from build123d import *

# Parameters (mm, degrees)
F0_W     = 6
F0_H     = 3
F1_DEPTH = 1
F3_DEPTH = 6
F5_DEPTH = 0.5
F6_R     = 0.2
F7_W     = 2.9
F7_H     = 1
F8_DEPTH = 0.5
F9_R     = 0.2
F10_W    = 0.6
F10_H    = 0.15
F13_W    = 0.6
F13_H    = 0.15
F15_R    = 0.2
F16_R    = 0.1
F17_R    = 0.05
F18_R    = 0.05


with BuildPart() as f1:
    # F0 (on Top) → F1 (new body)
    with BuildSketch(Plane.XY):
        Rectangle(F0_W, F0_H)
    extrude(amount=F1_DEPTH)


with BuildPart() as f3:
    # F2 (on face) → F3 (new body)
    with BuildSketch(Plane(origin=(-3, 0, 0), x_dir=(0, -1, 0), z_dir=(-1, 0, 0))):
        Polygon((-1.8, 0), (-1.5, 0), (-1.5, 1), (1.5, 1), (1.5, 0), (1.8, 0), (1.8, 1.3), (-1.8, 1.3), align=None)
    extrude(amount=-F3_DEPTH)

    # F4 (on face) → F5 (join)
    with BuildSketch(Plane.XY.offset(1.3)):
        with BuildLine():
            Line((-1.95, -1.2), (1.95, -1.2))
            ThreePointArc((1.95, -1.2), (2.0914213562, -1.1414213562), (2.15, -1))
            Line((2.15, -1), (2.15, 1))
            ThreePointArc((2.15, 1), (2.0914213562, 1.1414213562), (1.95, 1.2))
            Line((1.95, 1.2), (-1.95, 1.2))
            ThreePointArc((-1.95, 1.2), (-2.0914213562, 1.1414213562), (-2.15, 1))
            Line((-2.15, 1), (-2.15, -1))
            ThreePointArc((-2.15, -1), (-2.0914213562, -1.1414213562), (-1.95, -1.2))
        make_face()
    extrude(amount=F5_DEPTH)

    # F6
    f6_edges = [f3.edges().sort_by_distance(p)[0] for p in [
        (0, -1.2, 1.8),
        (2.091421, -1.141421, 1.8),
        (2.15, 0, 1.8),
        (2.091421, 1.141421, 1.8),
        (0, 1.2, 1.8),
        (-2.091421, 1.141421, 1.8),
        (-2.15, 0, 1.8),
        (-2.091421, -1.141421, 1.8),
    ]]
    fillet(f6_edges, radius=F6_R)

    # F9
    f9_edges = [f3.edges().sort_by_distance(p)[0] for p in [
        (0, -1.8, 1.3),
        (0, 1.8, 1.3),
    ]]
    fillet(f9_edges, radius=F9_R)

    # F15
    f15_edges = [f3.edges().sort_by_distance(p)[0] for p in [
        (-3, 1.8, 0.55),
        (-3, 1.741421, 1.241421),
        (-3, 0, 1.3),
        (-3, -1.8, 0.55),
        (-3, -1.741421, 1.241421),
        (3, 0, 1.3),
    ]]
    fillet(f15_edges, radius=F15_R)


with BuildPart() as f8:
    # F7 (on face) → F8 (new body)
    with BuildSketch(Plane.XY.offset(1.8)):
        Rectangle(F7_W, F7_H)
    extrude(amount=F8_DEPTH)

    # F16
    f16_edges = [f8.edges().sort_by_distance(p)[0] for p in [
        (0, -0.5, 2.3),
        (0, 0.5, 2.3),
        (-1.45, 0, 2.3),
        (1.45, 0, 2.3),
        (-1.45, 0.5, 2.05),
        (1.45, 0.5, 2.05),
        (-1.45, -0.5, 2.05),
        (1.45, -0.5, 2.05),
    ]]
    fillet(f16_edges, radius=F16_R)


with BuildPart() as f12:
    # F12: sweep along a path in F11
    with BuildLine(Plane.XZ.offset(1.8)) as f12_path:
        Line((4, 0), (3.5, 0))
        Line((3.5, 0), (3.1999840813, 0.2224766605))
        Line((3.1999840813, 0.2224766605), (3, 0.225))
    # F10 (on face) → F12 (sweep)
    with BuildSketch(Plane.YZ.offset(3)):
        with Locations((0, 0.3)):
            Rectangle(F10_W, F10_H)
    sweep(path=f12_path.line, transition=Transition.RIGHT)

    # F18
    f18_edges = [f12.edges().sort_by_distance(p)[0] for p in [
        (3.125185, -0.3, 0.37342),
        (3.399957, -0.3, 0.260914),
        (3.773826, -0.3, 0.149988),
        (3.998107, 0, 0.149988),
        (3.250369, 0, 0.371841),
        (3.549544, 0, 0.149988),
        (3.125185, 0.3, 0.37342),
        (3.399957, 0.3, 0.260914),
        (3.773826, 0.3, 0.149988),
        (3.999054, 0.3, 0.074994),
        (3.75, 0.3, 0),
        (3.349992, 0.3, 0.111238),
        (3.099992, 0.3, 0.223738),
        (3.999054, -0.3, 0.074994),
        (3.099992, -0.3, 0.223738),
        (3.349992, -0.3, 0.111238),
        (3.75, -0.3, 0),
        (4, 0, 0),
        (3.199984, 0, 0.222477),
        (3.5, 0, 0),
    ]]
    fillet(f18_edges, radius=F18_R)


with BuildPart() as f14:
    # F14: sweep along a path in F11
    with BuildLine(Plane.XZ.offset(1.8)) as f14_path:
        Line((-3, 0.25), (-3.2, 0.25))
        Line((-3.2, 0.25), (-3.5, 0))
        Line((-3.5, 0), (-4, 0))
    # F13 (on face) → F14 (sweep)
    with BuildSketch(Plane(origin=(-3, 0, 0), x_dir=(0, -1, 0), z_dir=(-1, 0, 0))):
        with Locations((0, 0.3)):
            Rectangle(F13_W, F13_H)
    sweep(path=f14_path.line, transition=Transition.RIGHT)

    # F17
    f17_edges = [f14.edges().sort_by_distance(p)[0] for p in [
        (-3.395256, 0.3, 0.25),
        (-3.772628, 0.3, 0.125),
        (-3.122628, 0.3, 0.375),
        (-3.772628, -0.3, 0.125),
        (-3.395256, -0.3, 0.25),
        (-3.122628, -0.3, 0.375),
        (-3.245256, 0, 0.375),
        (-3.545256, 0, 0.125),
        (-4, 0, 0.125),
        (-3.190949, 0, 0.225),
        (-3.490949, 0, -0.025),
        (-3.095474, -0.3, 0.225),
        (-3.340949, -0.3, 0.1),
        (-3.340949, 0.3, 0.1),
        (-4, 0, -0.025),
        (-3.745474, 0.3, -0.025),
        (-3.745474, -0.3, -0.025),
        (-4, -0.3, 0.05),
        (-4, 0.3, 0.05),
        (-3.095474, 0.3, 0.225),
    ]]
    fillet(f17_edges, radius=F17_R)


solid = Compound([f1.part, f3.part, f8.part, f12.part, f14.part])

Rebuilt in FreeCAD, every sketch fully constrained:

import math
import FreeCAD as App
import Part
import Sketcher
Q = App.Units.Quantity


def edges_at(feature, points):
    """Names of the edges that pass closest to the given points."""
    edges = feature.Shape.Edges
    near = lambda p: min(range(len(edges)), key=lambda i: edges[i].distToShape(Part.Vertex(*p))[0])
    return sorted({f"Edge{near(p) + 1}" for p in points})


def add_polygon(sketch, points):
    """Adds a closed chain of lines whose ends are joined by coincident constraints."""
    first, n = sketch.GeometryCount, len(points)
    for a, b in zip(points, points[1:] + points[:1]):
        sketch.addGeometry(Part.LineSegment(App.Vector(*a, 0), App.Vector(*b, 0)), False)
    for i in range(n):
        sketch.addConstraint(Sketcher.Constraint("Coincident", first + i, 2, first + (i + 1) % n, 1))

doc = App.newDocument("Part")
body = doc.addObject("PartDesign::Body", "Body")

# Sketch on XY plane
sketch1 = body.newObject("Sketcher::SketchObject", "Sketch")
sketch1.AttachmentSupport = (doc.getObject("XY_Plane"), [""])
sketch1.MapMode = "FlatFace"
add_polygon(sketch1, [(-3, 1.5), (-3, -1.5), (3, -1.5), (3, 1.5)])  # lines 0-3
sketch1.addConstraint(Sketcher.Constraint("Vertical", 0))
sketch1.addConstraint(Sketcher.Constraint("Horizontal", 1))
sketch1.addConstraint(Sketcher.Constraint("Vertical", 2))
sketch1.addConstraint(Sketcher.Constraint("Horizontal", 3))
sketch1.addConstraint(Sketcher.Constraint("Symmetric", 0, 2, 2, 2, -1, 1))
sketch1.addConstraint(Sketcher.Constraint("DistanceX", 1, 1, 1, 2, Q("6 mm")))
sketch1.addConstraint(Sketcher.Constraint("DistanceY", 0, 2, 0, 1, Q("3 mm")))
pad1 = body.newObject("PartDesign::Pad", "Pad")
pad1.Profile = sketch1
pad1.Length = 1
body2 = doc.addObject("PartDesign::Body", "Body001")

# Sketch on YZ plane
sketch2 = body2.newObject("Sketcher::SketchObject", "Sketch001")
sketch2.AttachmentSupport = (doc.getObject("YZ_Plane001"), [""])
sketch2.MapMode = "FlatFace"
sketch2.AttachmentOffset = App.Placement(App.Vector(0, 0, -3), App.Rotation())
add_polygon(sketch2, [(1.8, 0), (1.5, 0), (1.5, 1), (-1.5, 1), (-1.5, 0), (-1.8, 0), (-1.8, 1.3), (1.8, 1.3)])  # lines 0-7
sketch2.addConstraint(Sketcher.Constraint("Horizontal", 0))
sketch2.addConstraint(Sketcher.Constraint("Vertical", 1))
sketch2.addConstraint(Sketcher.Constraint("Horizontal", 2))
sketch2.addConstraint(Sketcher.Constraint("Vertical", 3))
sketch2.addConstraint(Sketcher.Constraint("Horizontal", 4))
sketch2.addConstraint(Sketcher.Constraint("Vertical", 5))
sketch2.addConstraint(Sketcher.Constraint("Horizontal", 6))
sketch2.addConstraint(Sketcher.Constraint("Vertical", 7))
sketch2.addConstraint(Sketcher.Constraint("Symmetric", 0, 2, 3, 2, -1, 1))
sketch2.addConstraint(Sketcher.Constraint("Symmetric", 4, 2, 7, 2, -2))
sketch2.addConstraint(Sketcher.Constraint("DistanceX", 2, 2, 2, 1, Q("3 mm")))
sketch2.addConstraint(Sketcher.Constraint("DistanceY", 1, 1, 1, 2, Q("1 mm")))
sketch2.addConstraint(Sketcher.Constraint("DistanceX", 0, 2, 0, 1, Q("0.3 mm")))
sketch2.addConstraint(Sketcher.Constraint("DistanceY", 5, 1, 5, 2, Q("1.3 mm")))
pad2 = body2.newObject("PartDesign::Pad", "Pad001")
pad2.Profile = sketch2
pad2.Length = 6

# Sketch on XY plane
sketch3 = body2.newObject("Sketcher::SketchObject", "Sketch002")
sketch3.AttachmentSupport = (doc.getObject("XY_Plane001"), [""])
sketch3.MapMode = "FlatFace"
sketch3.AttachmentOffset = App.Placement(App.Vector(0, 0, 1.3), App.Rotation())
sketch3.addGeometry(Part.LineSegment(App.Vector(-1.95, -1.2, 0), App.Vector(1.95, -1.2, 0)), False)
sketch3.addGeometry(Part.ArcOfCircle(Part.Circle(App.Vector(1.95, -1, 0), App.Vector(0, 0, 1), 0.2), math.radians(-90), math.radians(0)), False)
sketch3.addGeometry(Part.LineSegment(App.Vector(2.15, -1, 0), App.Vector(2.15, 1, 0)), False)
sketch3.addGeometry(Part.ArcOfCircle(Part.Circle(App.Vector(1.95, 1, 0), App.Vector(0, 0, 1), 0.2), math.radians(0), math.radians(90)), False)
sketch3.addGeometry(Part.LineSegment(App.Vector(1.95, 1.2, 0), App.Vector(-1.95, 1.2, 0)), False)
sketch3.addGeometry(Part.ArcOfCircle(Part.Circle(App.Vector(-1.95, 1, 0), App.Vector(0, 0, 1), 0.2), math.radians(90), math.radians(180)), False)
sketch3.addGeometry(Part.LineSegment(App.Vector(-2.15, 1, 0), App.Vector(-2.15, -1, 0)), False)
sketch3.addGeometry(Part.ArcOfCircle(Part.Circle(App.Vector(-1.95, -1, 0), App.Vector(0, 0, 1), 0.2), math.radians(180), math.radians(270)), False)
sketch3.addConstraint(Sketcher.Constraint("Tangent", 0, 2, 1, 1))
sketch3.addConstraint(Sketcher.Constraint("Tangent", 1, 2, 2, 1))
sketch3.addConstraint(Sketcher.Constraint("Tangent", 2, 2, 3, 1))
sketch3.addConstraint(Sketcher.Constraint("Tangent", 3, 2, 4, 1))
sketch3.addConstraint(Sketcher.Constraint("Tangent", 4, 2, 5, 1))
sketch3.addConstraint(Sketcher.Constraint("Tangent", 5, 2, 6, 1))
sketch3.addConstraint(Sketcher.Constraint("Tangent", 6, 2, 7, 1))
sketch3.addConstraint(Sketcher.Constraint("Tangent", 7, 2, 0, 1))
sketch3.addConstraint(Sketcher.Constraint("Horizontal", 0))
sketch3.addConstraint(Sketcher.Constraint("Vertical", 2))
sketch3.addConstraint(Sketcher.Constraint("Horizontal", 4))
sketch3.addConstraint(Sketcher.Constraint("Vertical", 6))
sketch3.addConstraint(Sketcher.Constraint("Equal", 1, 3))
sketch3.addConstraint(Sketcher.Constraint("Equal", 3, 5))
sketch3.addConstraint(Sketcher.Constraint("Equal", 5, 7))
sketch3.addConstraint(Sketcher.Constraint("Symmetric", 1, 3, 5, 3, -1, 1))
sketch3.addConstraint(Sketcher.Constraint("Radius", 1, Q("0.2 mm")))
sketch3.addConstraint(Sketcher.Constraint("DistanceY", 2, 1, 2, 2, Q("2 mm")))
sketch3.addConstraint(Sketcher.Constraint("DistanceX", 0, 1, 0, 2, Q("3.9 mm")))
pad3 = body2.newObject("PartDesign::Pad", "Pad002")
pad3.Profile = sketch3
pad3.Length = 0.5
doc.recompute()

fillet = body2.newObject("PartDesign::Fillet", "Fillet")
fillet.Base = (pad3, edges_at(pad3, [
    (0, -1.2, 1.8),
    (2.091, -1.141, 1.8),
    (2.15, 0, 1.8),
    (2.091, 1.141, 1.8),
    (0, 1.2, 1.8),
    (-2.091, 1.141, 1.8),
    (-2.15, 0, 1.8),
    (-2.091, -1.141, 1.8),
]))
fillet.Radius = 0.2
doc.recompute()

fillet2 = body2.newObject("PartDesign::Fillet", "Fillet001")
fillet2.Base = (fillet, edges_at(fillet, [(0, -1.8, 1.3), (0, 1.8, 1.3)]))
fillet2.Radius = 0.2
doc.recompute()

fillet3 = body2.newObject("PartDesign::Fillet", "Fillet002")
fillet3.Base = (fillet2, edges_at(fillet2, [
    (-3, 1.8, 0.55),
    (-3, 1.741, 1.241),
    (-3, 0, 1.3),
    (-3, -1.8, 0.55),
    (-3, -1.741, 1.241),
    (3, 0, 1.3),
]))
fillet3.Radius = 0.2
body3 = doc.addObject("PartDesign::Body", "Body002")

# Sketch on XY plane
sketch4 = body3.newObject("Sketcher::SketchObject", "Sketch003")
sketch4.AttachmentSupport = (doc.getObject("XY_Plane002"), [""])
sketch4.MapMode = "FlatFace"
sketch4.AttachmentOffset = App.Placement(App.Vector(0, 0, 1.8), App.Rotation())
add_polygon(sketch4, [(-1.4, 0.5), (-1.4, -0.5), (1.4, -0.5), (1.4, 0.5)])  # lines 0-3
sketch4.addConstraint(Sketcher.Constraint("Vertical", 0))
sketch4.addConstraint(Sketcher.Constraint("Horizontal", 1))
sketch4.addConstraint(Sketcher.Constraint("Vertical", 2))
sketch4.addConstraint(Sketcher.Constraint("Horizontal", 3))
sketch4.addConstraint(Sketcher.Constraint("Symmetric", 0, 2, 2, 2, -1, 1))
sketch4.addConstraint(Sketcher.Constraint("DistanceY", 0, 2, 0, 1, Q("1 mm")))
sketch4.addConstraint(Sketcher.Constraint("DistanceX", 1, 1, 1, 2, Q("2.9 mm")))
pad4 = body3.newObject("PartDesign::Pad", "Pad003")
pad4.Profile = sketch4
pad4.Length = 0.5
doc.recompute()

fillet4 = body3.newObject("PartDesign::Fillet", "Fillet003")
fillet4.Base = (pad4, edges_at(pad4, [
    (0, -0.5, 2.3),
    (0, 0.5, 2.3),
    (-1.45, 0, 2.3),
    (1.45, 0, 2.3),
    (-1.45, 0.5, 2.05),
    (1.45, 0.5, 2.05),
    (-1.45, -0.5, 2.05),
    (1.45, -0.5, 2.05),
]))
fillet4.Radius = 0.1
body4 = doc.addObject("PartDesign::Body", "Body003")

# Sketch on YZ plane
sketch5 = body4.newObject("Sketcher::SketchObject", "Sketch004")
sketch5.AttachmentSupport = (doc.getObject("YZ_Plane003"), [""])
sketch5.MapMode = "FlatFace"
sketch5.AttachmentOffset = App.Placement(App.Vector(0, 0, 3), App.Rotation())
add_polygon(sketch5, [(-0.3, 0.38), (-0.3, 0.23), (0.3, 0.23), (0.3, 0.38)])  # lines 0-3
sketch5.addConstraint(Sketcher.Constraint("Vertical", 0))
sketch5.addConstraint(Sketcher.Constraint("Horizontal", 1))
sketch5.addConstraint(Sketcher.Constraint("Vertical", 2))
sketch5.addConstraint(Sketcher.Constraint("Horizontal", 3))
sketch5.addConstraint(Sketcher.Constraint("DistanceX", 1, 1, 1, 2, Q("0.6 mm")))
sketch5.addConstraint(Sketcher.Constraint("DistanceY", 0, 2, 0, 1, Q("0.15 mm")))
sketch5.addConstraint(Sketcher.Constraint("DistanceX", 0, 2, -1, 1, Q("0.3 mm")))
sketch5.addConstraint(Sketcher.Constraint("DistanceY", -1, 1, 0, 2, Q("0.225 mm")))

# Sketch on XZ plane
sketch6 = body4.newObject("Sketcher::SketchObject", "Sketch005")
sketch6.AttachmentSupport = (doc.getObject("XZ_Plane003"), [""])
sketch6.MapMode = "FlatFace"
sketch6.AttachmentOffset = App.Placement(App.Vector(0, 0, 1.8), App.Rotation())
sketch6.addGeometry(Part.LineSegment(App.Vector(4, 0, 0), App.Vector(3.5, 0, 0)), False)
sketch6.addGeometry(Part.LineSegment(App.Vector(3.5, 0, 0), App.Vector(3.2, 0.22, 0)), False)
sketch6.addGeometry(Part.LineSegment(App.Vector(3.2, 0.22, 0), App.Vector(3, 0.23, 0)), False)
sketch6.addConstraint(Sketcher.Constraint("Coincident", 0, 2, 1, 1))
sketch6.addConstraint(Sketcher.Constraint("Coincident", 1, 2, 2, 1))
sketch6.addConstraint(Sketcher.Constraint("Horizontal", 0))
sketch6.addConstraint(Sketcher.Constraint("PointOnObject", 0, 1, -1))
sketch6.addConstraint(Sketcher.Constraint("DistanceX", 0, 2, 0, 1, Q("0.5 mm")))
sketch6.addConstraint(Sketcher.Constraint("DistanceX", -1, 1, 0, 1, Q("4 mm")))
sketch6.addConstraint(Sketcher.Constraint("DistanceX", -1, 1, 2, 2, Q("3 mm")))
sketch6.addConstraint(Sketcher.Constraint("Distance", 2, Q("0.2 mm")))
sketch6.addConstraint(Sketcher.Constraint("DistanceY", -1, 1, 2, 2, Q("0.225 mm")))
sketch6.addConstraint(Sketcher.Constraint("Distance", 1, Q("0.373504 mm")))
doc.recompute()

additivepipe = body4.newObject("PartDesign::AdditivePipe", "AdditivePipe")
additivepipe.Profile = sketch5
additivepipe.Spine = (sketch6, ["Edge1", "Edge2", "Edge3"])
additivepipe.Transition = "Right corner"
doc.recompute()

fillet5 = body4.newObject("PartDesign::Fillet", "Fillet004")
fillet5.Base = (additivepipe, edges_at(additivepipe, [
    (3.125, -0.3, 0.373),
    (3.4, -0.3, 0.261),
    (3.774, -0.3, 0.15),
    (3.998, 0, 0.15),
    (3.25, 0, 0.372),
    (3.55, 0, 0.15),
    (3.125, 0.3, 0.373),
    (3.4, 0.3, 0.261),
    (3.774, 0.3, 0.15),
    (3.999, 0.3, 0.075),
    (3.75, 0.3, 0),
    (3.35, 0.3, 0.111),
    (3.1, 0.3, 0.224),
    (3.999, -0.3, 0.075),
    (3.1, -0.3, 0.224),
    (3.35, -0.3, 0.111),
    (3.75, -0.3, 0),
    (4, 0, 0),
    (3.2, 0, 0.222),
    (3.5, 0, 0),
]))
fillet5.Radius = 0.05
body5 = doc.addObject("PartDesign::Body", "Body004")

# Sketch on YZ plane
sketch7 = body5.newObject("Sketcher::SketchObject", "Sketch006")
sketch7.AttachmentSupport = (doc.getObject("YZ_Plane004"), [""])
sketch7.MapMode = "FlatFace"
sketch7.AttachmentOffset = App.Placement(App.Vector(0, 0, -3), App.Rotation())
add_polygon(sketch7, [(0.3, 0.38), (0.3, 0.23), (-0.3, 0.23), (-0.3, 0.38)])  # lines 0-3
sketch7.addConstraint(Sketcher.Constraint("Vertical", 0))
sketch7.addConstraint(Sketcher.Constraint("Horizontal", 1))
sketch7.addConstraint(Sketcher.Constraint("Vertical", 2))
sketch7.addConstraint(Sketcher.Constraint("Horizontal", 3))
sketch7.addConstraint(Sketcher.Constraint("DistanceX", 1, 2, 1, 1, Q("0.6 mm")))
sketch7.addConstraint(Sketcher.Constraint("DistanceY", 0, 2, 0, 1, Q("0.15 mm")))
sketch7.addConstraint(Sketcher.Constraint("DistanceX", -1, 1, 0, 2, Q("0.3 mm")))
sketch7.addConstraint(Sketcher.Constraint("DistanceY", -1, 1, 0, 2, Q("0.225 mm")))

# Sketch on XZ plane
sketch8 = body5.newObject("Sketcher::SketchObject", "Sketch007")
sketch8.AttachmentSupport = (doc.getObject("XZ_Plane004"), [""])
sketch8.MapMode = "FlatFace"
sketch8.AttachmentOffset = App.Placement(App.Vector(0, 0, 1.8), App.Rotation())
sketch8.addGeometry(Part.LineSegment(App.Vector(-3, 0.25, 0), App.Vector(-3.2, 0.25, 0)), False)
sketch8.addGeometry(Part.LineSegment(App.Vector(-3.2, 0.25, 0), App.Vector(-3.5, 0, 0)), False)
sketch8.addGeometry(Part.LineSegment(App.Vector(-3.5, 0, 0), App.Vector(-4, 0, 0)), False)
sketch8.addConstraint(Sketcher.Constraint("Coincident", 0, 2, 1, 1))
sketch8.addConstraint(Sketcher.Constraint("Coincident", 1, 2, 2, 1))
sketch8.addConstraint(Sketcher.Constraint("Horizontal", 0))
sketch8.addConstraint(Sketcher.Constraint("Horizontal", 2))
sketch8.addConstraint(Sketcher.Constraint("PointOnObject", 1, 2, -1))
sketch8.addConstraint(Sketcher.Constraint("DistanceX", 0, 2, 0, 1, Q("0.2 mm")))
sketch8.addConstraint(Sketcher.Constraint("DistanceX", 2, 2, 2, 1, Q("0.5 mm")))
sketch8.addConstraint(Sketcher.Constraint("DistanceX", 0, 1, -1, 1, Q("3 mm")))
sketch8.addConstraint(Sketcher.Constraint("DistanceX", 2, 2, -1, 1, Q("4 mm")))
sketch8.addConstraint(Sketcher.Constraint("DistanceY", -1, 1, 0, 1, Q("0.25 mm")))
doc.recompute()

additivepipe2 = body5.newObject("PartDesign::AdditivePipe", "AdditivePipe001")
additivepipe2.Profile = sketch7
additivepipe2.Spine = (sketch8, ["Edge1", "Edge2", "Edge3"])
additivepipe2.Transition = "Right corner"
doc.recompute()

fillet6 = body5.newObject("PartDesign::Fillet", "Fillet005")
fillet6.Base = (additivepipe2, edges_at(additivepipe2, [
    (-3.395, 0.3, 0.25),
    (-3.773, 0.3, 0.125),
    (-3.123, 0.3, 0.375),
    (-3.773, -0.3, 0.125),
    (-3.395, -0.3, 0.25),
    (-3.123, -0.3, 0.375),
    (-3.245, 0, 0.375),
    (-3.545, 0, 0.125),
    (-4, 0, 0.125),
    (-3.191, 0, 0.225),
    (-3.491, 0, -0.025),
    (-3.095, -0.3, 0.225),
    (-3.341, -0.3, 0.1),
    (-3.341, 0.3, 0.1),
    (-4, 0, -0.025),
    (-3.745, 0.3, -0.025),
    (-3.745, -0.3, -0.025),
    (-4, -0.3, 0.05),
    (-4, 0.3, 0.05),
    (-3.095, 0.3, 0.225),
]))
fillet6.Radius = 0.05

doc.recompute()
